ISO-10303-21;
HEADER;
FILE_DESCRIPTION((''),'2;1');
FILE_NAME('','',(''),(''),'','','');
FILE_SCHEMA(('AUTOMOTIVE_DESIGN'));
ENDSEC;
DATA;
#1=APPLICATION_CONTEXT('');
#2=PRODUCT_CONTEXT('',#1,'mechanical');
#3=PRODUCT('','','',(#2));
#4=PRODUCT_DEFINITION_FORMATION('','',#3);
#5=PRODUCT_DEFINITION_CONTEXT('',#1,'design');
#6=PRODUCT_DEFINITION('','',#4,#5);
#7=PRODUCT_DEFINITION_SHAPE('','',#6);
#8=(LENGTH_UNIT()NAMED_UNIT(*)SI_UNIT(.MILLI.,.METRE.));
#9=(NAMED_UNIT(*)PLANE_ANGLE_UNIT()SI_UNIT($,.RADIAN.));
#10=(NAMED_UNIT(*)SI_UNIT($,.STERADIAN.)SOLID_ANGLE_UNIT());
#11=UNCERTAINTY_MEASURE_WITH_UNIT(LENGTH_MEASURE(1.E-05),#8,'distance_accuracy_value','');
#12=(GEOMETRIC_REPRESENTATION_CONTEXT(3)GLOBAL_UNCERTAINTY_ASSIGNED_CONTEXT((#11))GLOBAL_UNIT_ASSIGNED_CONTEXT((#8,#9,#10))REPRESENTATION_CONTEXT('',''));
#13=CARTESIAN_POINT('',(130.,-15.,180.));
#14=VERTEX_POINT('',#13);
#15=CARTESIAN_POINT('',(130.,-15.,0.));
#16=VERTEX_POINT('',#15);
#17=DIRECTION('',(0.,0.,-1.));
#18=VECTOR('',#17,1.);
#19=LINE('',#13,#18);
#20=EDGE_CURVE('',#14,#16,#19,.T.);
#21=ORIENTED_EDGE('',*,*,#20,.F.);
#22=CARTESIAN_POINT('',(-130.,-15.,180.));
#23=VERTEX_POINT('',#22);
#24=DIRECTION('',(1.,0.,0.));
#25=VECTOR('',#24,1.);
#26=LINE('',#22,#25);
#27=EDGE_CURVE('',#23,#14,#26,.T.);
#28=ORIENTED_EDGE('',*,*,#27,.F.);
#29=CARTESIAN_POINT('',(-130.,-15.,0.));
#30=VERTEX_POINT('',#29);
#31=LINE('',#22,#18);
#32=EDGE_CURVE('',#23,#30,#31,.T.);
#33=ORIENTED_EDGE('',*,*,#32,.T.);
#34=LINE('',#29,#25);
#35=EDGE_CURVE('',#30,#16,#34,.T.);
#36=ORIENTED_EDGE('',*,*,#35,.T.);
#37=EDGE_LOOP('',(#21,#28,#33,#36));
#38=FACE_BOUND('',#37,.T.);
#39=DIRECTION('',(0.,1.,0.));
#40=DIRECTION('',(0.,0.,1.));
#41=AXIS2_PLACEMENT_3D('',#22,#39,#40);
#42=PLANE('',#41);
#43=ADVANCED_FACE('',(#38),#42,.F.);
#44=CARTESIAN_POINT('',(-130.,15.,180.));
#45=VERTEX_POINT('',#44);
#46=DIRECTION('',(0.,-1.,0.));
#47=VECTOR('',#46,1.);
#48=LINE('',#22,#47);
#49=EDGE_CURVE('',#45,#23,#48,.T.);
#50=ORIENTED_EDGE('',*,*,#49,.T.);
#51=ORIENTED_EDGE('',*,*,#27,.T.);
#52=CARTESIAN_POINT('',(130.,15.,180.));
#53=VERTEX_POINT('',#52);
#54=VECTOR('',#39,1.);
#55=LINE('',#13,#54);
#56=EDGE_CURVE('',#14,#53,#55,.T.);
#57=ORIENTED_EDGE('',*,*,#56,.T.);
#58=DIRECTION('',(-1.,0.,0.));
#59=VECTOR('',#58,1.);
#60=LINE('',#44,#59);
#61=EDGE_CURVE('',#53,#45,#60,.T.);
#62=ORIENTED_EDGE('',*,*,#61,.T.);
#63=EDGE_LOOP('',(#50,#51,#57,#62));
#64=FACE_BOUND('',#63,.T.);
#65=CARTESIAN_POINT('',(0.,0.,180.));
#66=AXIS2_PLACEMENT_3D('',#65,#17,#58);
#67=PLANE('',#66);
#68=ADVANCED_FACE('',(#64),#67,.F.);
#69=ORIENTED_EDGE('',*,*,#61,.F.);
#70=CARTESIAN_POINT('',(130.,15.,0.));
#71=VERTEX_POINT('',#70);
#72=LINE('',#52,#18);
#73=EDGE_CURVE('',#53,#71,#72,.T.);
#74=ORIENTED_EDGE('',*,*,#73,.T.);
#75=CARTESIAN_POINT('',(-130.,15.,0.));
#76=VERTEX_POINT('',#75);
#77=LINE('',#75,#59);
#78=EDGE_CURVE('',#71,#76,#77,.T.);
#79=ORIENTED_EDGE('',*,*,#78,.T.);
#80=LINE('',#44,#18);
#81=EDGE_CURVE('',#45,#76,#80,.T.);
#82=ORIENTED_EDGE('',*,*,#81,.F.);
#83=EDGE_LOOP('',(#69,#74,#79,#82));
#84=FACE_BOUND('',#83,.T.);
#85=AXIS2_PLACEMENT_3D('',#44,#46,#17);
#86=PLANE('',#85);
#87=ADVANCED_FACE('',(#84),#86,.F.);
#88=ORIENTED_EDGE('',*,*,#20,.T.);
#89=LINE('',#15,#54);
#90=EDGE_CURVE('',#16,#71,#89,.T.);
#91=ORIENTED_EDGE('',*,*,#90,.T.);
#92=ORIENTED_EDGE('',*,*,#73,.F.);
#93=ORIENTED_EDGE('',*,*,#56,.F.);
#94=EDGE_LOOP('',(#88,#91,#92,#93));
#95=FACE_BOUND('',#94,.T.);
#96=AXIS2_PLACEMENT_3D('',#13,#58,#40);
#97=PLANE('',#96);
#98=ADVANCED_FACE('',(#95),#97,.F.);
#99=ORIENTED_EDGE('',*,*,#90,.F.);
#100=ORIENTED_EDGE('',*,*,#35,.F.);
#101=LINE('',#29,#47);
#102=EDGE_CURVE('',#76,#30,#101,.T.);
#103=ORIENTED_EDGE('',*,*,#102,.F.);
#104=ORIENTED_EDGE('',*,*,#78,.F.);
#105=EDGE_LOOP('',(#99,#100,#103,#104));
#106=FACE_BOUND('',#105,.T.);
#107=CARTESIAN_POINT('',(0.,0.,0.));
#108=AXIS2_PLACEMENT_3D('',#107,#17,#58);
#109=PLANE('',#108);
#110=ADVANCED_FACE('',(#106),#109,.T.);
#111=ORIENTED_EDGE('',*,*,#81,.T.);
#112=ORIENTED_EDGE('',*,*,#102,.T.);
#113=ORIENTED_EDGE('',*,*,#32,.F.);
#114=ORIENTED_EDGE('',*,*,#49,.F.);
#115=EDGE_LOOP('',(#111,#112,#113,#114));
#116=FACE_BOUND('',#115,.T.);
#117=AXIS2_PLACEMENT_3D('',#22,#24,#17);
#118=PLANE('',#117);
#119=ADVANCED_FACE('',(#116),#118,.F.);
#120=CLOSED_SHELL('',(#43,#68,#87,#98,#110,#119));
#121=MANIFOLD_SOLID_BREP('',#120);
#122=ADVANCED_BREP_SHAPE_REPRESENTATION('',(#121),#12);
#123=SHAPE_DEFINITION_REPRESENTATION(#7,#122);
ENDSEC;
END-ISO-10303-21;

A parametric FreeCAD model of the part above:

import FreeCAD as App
import Part
import Sketcher

V = App.Vector

doc = App.newDocument("Part")
params = doc.addObject("Spreadsheet::Sheet", "Params")
for row, (alias, value) in enumerate([
    ("sketch1_width", "260 mm"),
    ("sketch1_height", "30 mm"),
    ("pad1_length", "180 mm"),
], start=1):
    params.set(f"A{row}", alias)
    params.set(f"B{row}", "=" + value)
    params.setAlias(f"B{row}", alias)

body = doc.addObject("PartDesign::Body", "Body")

# Sketch on XY plane
sketch1 = body.newObject("Sketcher::SketchObject", "Sketch")
sketch1.AttachmentSupport = (doc.getObject("XY_Plane"), [""])
sketch1.MapMode = "FlatFace"
sketch1.addGeometry(Part.LineSegment(V(-130, 15, 0), V(-130, -15, 0)), False)
sketch1.addGeometry(Part.LineSegment(V(-130, -15, 0), V(130, -15, 0)), False)
sketch1.addGeometry(Part.LineSegment(V(130, -15, 0), V(130, 15, 0)), False)
sketch1.addGeometry(Part.LineSegment(V(130, 15, 0), V(-130, 15, 0)), False)
sketch1.addConstraint(Sketcher.Constraint("Coincident", 0, 2, 1, 1))
sketch1.addConstraint(Sketcher.Constraint("Coincident", 1, 2, 2, 1))
sketch1.addConstraint(Sketcher.Constraint("Coincident", 2, 2, 3, 1))
sketch1.addConstraint(Sketcher.Constraint("Coincident", 3, 2, 0, 1))
sketch1.addConstraint(Sketcher.Constraint("Vertical", 0))
sketch1.addConstraint(Sketcher.Constraint("Horizontal", 1))
sketch1.addConstraint(Sketcher.Constraint("Vertical", 2))
sketch1.addConstraint(Sketcher.Constraint("Horizontal", 3))
sketch1.addConstraint(Sketcher.Constraint("Symmetric", 0, 2, 2, 2, -1, 1))
sketch1.addConstraint(Sketcher.Constraint("DistanceX", 1, 1, 1, 2, 260.0))
sketch1.addConstraint(Sketcher.Constraint("DistanceY", 0, 2, 0, 1, 30.0))
sketch1.setExpression("Constraints[9]", "Params.sketch1_width")
sketch1.setExpression("Constraints[10]", "Params.sketch1_height")
pad1 = body.newObject("PartDesign::Pad", "Pad")
pad1.Profile = sketch1
pad1.setExpression("Length", "Params.pad1_length")

doc.recompute()
